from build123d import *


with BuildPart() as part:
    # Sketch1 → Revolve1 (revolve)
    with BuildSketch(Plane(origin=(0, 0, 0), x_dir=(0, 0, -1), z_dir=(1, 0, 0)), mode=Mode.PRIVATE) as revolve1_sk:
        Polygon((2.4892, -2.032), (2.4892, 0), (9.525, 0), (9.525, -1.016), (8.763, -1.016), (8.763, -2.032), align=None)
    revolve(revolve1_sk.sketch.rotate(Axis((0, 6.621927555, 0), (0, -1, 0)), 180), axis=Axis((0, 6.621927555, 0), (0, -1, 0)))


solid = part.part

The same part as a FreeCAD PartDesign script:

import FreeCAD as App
import Part
import Sketcher
Q = App.Units.Quantity


def add_polygon(sketch, points):
    """Adds a closed chain of lines whose ends are joined by coincident constraints."""
    first, n = sketch.GeometryCount, len(points)
    for a, b in zip(points, points[1:] + points[:1]):
        sketch.addGeometry(Part.LineSegment(App.Vector(*a, 0), App.Vector(*b, 0)), False)
    for i in range(n):
        sketch.addConstraint(Sketcher.Constraint("Coincident", first + i, 2, first + (i + 1) % n, 1))

doc = App.newDocument("Part")
body = doc.addObject("PartDesign::Body", "Body")

# Sketch on YZ plane
sketch1 = doc.addObject("Sketcher::SketchObject", "Sketch")
body.addObject(sketch1)
sketch1.AttachmentSupport = (doc.YZ_Plane, [""])
sketch1.MapMode = "FlatFace"
add_polygon(sketch1, [(0, -2.4892), (-2.032, -2.4892), (-2.032, -8.763), (-1.016, -8.763), (-1.016, -9.525), (0, -9.525)])  # lines 0-5
sketch1.addConstraint([
    Sketcher.Constraint("Horizontal", 0),
    Sketcher.Constraint("Vertical", 1),
    Sketcher.Constraint("Horizontal", 2),
    Sketcher.Constraint("Vertical", 3),
    Sketcher.Constraint("Horizontal", 4),
    Sketcher.Constraint("Vertical", 5),
    Sketcher.Constraint("PointOnObject", 4, 2, -2),
    Sketcher.Constraint("Equal", 2, 4),
    Sketcher.Constraint("DistanceX", 0, 2, 0, 1, Q("0.08 in")),
    Sketcher.Constraint("DistanceY", 3, 2, 3, 1, Q("0.03 in")),
    Sketcher.Constraint("DistanceY", 1, 2, 1, 1, Q("0.247 in")),
    Sketcher.Constraint("DistanceY", 0, 2, -1, 1, Q("0.098 in")),
])
revolution = doc.addObject("PartDesign::Revolution", "Revolution")
body.addObject(revolution)
revolution.Profile = sketch1
revolution.ReferenceAxis = (sketch1, ["H_Axis"])
revolution.Angle = 360

doc.recompute()
